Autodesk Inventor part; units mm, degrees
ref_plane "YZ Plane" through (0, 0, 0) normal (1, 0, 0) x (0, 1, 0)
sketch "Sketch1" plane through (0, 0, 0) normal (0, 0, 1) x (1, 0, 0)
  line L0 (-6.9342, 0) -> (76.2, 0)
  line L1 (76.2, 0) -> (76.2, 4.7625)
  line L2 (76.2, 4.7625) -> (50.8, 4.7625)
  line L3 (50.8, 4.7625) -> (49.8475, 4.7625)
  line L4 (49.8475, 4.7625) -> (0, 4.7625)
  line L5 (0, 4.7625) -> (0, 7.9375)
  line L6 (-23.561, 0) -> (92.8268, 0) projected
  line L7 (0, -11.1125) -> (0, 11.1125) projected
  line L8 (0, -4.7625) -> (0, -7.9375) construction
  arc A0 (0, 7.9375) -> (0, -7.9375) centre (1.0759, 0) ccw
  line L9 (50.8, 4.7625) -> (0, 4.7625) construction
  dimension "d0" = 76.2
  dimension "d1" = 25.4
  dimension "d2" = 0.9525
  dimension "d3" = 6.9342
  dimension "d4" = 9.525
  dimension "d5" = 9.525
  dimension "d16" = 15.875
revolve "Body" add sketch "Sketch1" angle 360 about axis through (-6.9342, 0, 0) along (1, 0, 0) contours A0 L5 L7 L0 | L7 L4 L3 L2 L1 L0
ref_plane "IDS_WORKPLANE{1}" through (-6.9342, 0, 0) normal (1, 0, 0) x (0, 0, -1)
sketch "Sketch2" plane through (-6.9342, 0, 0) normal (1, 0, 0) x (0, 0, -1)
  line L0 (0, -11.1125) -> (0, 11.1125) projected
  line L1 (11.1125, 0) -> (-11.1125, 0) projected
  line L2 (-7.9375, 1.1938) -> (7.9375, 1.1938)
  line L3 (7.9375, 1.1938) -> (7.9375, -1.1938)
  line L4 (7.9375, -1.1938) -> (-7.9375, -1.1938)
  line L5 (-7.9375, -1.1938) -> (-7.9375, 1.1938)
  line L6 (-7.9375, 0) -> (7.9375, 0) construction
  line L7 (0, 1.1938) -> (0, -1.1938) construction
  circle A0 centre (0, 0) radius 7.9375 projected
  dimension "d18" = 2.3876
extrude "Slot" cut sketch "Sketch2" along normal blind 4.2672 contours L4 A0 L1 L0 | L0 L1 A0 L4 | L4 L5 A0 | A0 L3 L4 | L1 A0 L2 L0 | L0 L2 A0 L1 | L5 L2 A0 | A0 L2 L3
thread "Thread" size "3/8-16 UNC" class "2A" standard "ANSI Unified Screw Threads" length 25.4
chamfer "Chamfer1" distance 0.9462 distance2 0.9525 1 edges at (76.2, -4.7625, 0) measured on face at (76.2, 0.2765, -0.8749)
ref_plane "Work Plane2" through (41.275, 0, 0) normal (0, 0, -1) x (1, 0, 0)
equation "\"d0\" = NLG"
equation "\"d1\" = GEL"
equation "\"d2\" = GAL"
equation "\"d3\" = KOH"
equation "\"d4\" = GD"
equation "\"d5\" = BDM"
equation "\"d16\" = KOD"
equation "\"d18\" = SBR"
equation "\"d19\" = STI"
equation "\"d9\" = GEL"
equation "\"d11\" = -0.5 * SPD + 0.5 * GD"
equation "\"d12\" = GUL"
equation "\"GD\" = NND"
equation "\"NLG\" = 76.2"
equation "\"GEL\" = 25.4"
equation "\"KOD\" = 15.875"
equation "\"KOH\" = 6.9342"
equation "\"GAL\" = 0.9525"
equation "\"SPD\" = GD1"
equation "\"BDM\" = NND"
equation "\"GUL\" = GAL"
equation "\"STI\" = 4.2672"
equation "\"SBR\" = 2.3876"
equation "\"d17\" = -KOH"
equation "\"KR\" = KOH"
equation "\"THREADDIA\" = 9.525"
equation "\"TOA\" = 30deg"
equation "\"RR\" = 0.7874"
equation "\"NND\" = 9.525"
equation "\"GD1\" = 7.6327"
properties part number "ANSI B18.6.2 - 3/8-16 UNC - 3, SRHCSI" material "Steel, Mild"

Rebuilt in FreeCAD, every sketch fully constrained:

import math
import FreeCAD as App
import Part
import Sketcher

V = App.Vector
Q = App.Units.Quantity


def edges_at(feature, points):
    """Names of the edges that pass closest to the given points."""
    edges = feature.Shape.Edges
    near = lambda p: min(range(len(edges)), key=lambda i: edges[i].distToShape(Part.Vertex(*p))[0])
    return sorted({f"Edge{near(p) + 1}" for p in points})

doc = App.newDocument("Part")
params = doc.addObject("Spreadsheet::Sheet", "Params")
for row, (alias, value) in enumerate([
    ("sketch1_width", "3 in"),
    ("sketch1_height", "0.1875 in"),
    ("sketch1_height2", "0.125 in"),
    ("revolution_angle", "360 deg"),
    ("sketch2_width", "0.094 in"),
    ("sketch2_height", "0.625 in"),
    ("pocket1_length", "0.168 in"),
    ("chamfer_size", "0.9462 mm"),
    ("chamfer_size2", "0.0375 in"),
], start=1):
    params.set(f"A{row}", alias)
    params.set(f"B{row}", "=" + value)
    params.setAlias(f"B{row}", alias)

body = doc.addObject("PartDesign::Body", "Body")

sketch1 = body.newObject("Sketcher::SketchObject", "Sketch")
sketch1.AttachmentSupport = (doc.getObject("XY_Plane"), [""])
sketch1.MapMode = "FlatFace"
sketch1.addGeometry(Part.ArcOfCircle(Part.Circle(V(1.0759, 0, 0), V(0, 0, 1), 8.010085), math.radians(97.719195), math.radians(180)), False)
sketch1.addGeometry(Part.LineSegment(V(-6.9342, 0, 0), V(76.2, 0, 0)), False)
sketch1.addGeometry(Part.LineSegment(V(76.2, 0, 0), V(76.2, 4.7625, 0)), False)
sketch1.addGeometry(Part.LineSegment(V(76.2, 4.7625, 0), V(0, 4.7625, 0)), False)
sketch1.addGeometry(Part.LineSegment(V(0, 4.7625, 0), V(0, 7.9375, 0)), False)
sketch1.addConstraint(Sketcher.Constraint("Coincident", 0, 2, 1, 1))
sketch1.addConstraint(Sketcher.Constraint("Coincident", 1, 2, 2, 1))
sketch1.addConstraint(Sketcher.Constraint("Coincident", 2, 2, 3, 1))
sketch1.addConstraint(Sketcher.Constraint("Coincident", 3, 2, 4, 1))
sketch1.addConstraint(Sketcher.Constraint("Coincident", 4, 2, 0, 1))
sketch1.addConstraint(Sketcher.Constraint("Horizontal", 1))
sketch1.addConstraint(Sketcher.Constraint("Vertical", 2))
sketch1.addConstraint(Sketcher.Constraint("Horizontal", 3))
sketch1.addConstraint(Sketcher.Constraint("Vertical", 4))
sketch1.addConstraint(Sketcher.Constraint("PointOnObject", 0, 3, -1))
sketch1.addConstraint(Sketcher.Constraint("PointOnObject", 0, 2, -1))
sketch1.addConstraint(Sketcher.Constraint("PointOnObject", 3, 2, -2))
sketch1.addConstraint(Sketcher.Constraint("DistanceX", 3, 2, 3, 1, Q("3 in")))
sketch1.addConstraint(Sketcher.Constraint("DistanceX", 0, 2, -1, 1, Q("0.273 in")))
sketch1.addConstraint(Sketcher.Constraint("DistanceY", 2, 1, 2, 2, Q("0.1875 in")))
sketch1.addConstraint(Sketcher.Constraint("DistanceY", 4, 1, 4, 2, Q("0.125 in")))
sketch1.setExpression("Constraints[12]", "Params.sketch1_width")
sketch1.setExpression("Constraints[14]", "Params.sketch1_height")
sketch1.setExpression("Constraints[15]", "Params.sketch1_height2")
revolution = body.newObject("PartDesign::Revolution", "Revolution")
revolution.Profile = sketch1
revolution.ReferenceAxis = (sketch1, ["H_Axis"])
revolution.setExpression("Angle", "Params.revolution_angle")

sketch2 = body.newObject("Sketcher::SketchObject", "Sketch001")
sketch2.AttachmentSupport = (doc.getObject("YZ_Plane"), [""])
sketch2.MapMode = "FlatFace"
sketch2.AttachmentOffset = App.Placement(V(0, 0, -0.273 * 25.4), App.Rotation())
sketch2.addGeometry(Part.LineSegment(V(-1.1938, -7.9375, 0), V(1.1938, -7.9375, 0)), False)
sketch2.addGeometry(Part.LineSegment(V(1.1938, -7.9375, 0), V(1.1938, 7.9375, 0)), False)
sketch2.addGeometry(Part.LineSegment(V(1.1938, 7.9375, 0), V(-1.1938, 7.9375, 0)), False)
sketch2.addGeometry(Part.LineSegment(V(-1.1938, 7.9375, 0), V(-1.1938, -7.9375, 0)), False)
sketch2.addConstraint(Sketcher.Constraint("Coincident", 0, 2, 1, 1))
sketch2.addConstraint(Sketcher.Constraint("Coincident", 1, 2, 2, 1))
sketch2.addConstraint(Sketcher.Constraint("Coincident", 2, 2, 3, 1))
sketch2.addConstraint(Sketcher.Constraint("Coincident", 3, 2, 0, 1))
sketch2.addConstraint(Sketcher.Constraint("Horizontal", 0))
sketch2.addConstraint(Sketcher.Constraint("Vertical", 1))
sketch2.addConstraint(Sketcher.Constraint("Horizontal", 2))
sketch2.addConstraint(Sketcher.Constraint("Vertical", 3))
sketch2.addConstraint(Sketcher.Constraint("Symmetric", 0, 2, 2, 2, -1, 1))
sketch2.addConstraint(Sketcher.Constraint("DistanceX", 0, 1, 0, 2, Q("0.094 in")))
sketch2.addConstraint(Sketcher.Constraint("DistanceY", 1, 1, 1, 2, Q("0.625 in")))
sketch2.setExpression("Constraints[9]", "Params.sketch2_width")
sketch2.setExpression("Constraints[10]", "Params.sketch2_height")
pocket1 = body.newObject("PartDesign::Pocket", "Pocket")
pocket1.Profile = sketch2
pocket1.setExpression("Length", "Params.pocket1_length")
pocket1.Reversed = True
doc.recompute()

chamfer = body.newObject("PartDesign::Chamfer", "Chamfer")
chamfer.Base = (pocket1, edges_at(pocket1, [(76.2, -4.763, 0)]))
chamfer.ChamferType = "Two distances"
chamfer.setExpression("Size", "Params.chamfer_size")
chamfer.setExpression("Size2", "Params.chamfer_size2")

doc.recompute()
